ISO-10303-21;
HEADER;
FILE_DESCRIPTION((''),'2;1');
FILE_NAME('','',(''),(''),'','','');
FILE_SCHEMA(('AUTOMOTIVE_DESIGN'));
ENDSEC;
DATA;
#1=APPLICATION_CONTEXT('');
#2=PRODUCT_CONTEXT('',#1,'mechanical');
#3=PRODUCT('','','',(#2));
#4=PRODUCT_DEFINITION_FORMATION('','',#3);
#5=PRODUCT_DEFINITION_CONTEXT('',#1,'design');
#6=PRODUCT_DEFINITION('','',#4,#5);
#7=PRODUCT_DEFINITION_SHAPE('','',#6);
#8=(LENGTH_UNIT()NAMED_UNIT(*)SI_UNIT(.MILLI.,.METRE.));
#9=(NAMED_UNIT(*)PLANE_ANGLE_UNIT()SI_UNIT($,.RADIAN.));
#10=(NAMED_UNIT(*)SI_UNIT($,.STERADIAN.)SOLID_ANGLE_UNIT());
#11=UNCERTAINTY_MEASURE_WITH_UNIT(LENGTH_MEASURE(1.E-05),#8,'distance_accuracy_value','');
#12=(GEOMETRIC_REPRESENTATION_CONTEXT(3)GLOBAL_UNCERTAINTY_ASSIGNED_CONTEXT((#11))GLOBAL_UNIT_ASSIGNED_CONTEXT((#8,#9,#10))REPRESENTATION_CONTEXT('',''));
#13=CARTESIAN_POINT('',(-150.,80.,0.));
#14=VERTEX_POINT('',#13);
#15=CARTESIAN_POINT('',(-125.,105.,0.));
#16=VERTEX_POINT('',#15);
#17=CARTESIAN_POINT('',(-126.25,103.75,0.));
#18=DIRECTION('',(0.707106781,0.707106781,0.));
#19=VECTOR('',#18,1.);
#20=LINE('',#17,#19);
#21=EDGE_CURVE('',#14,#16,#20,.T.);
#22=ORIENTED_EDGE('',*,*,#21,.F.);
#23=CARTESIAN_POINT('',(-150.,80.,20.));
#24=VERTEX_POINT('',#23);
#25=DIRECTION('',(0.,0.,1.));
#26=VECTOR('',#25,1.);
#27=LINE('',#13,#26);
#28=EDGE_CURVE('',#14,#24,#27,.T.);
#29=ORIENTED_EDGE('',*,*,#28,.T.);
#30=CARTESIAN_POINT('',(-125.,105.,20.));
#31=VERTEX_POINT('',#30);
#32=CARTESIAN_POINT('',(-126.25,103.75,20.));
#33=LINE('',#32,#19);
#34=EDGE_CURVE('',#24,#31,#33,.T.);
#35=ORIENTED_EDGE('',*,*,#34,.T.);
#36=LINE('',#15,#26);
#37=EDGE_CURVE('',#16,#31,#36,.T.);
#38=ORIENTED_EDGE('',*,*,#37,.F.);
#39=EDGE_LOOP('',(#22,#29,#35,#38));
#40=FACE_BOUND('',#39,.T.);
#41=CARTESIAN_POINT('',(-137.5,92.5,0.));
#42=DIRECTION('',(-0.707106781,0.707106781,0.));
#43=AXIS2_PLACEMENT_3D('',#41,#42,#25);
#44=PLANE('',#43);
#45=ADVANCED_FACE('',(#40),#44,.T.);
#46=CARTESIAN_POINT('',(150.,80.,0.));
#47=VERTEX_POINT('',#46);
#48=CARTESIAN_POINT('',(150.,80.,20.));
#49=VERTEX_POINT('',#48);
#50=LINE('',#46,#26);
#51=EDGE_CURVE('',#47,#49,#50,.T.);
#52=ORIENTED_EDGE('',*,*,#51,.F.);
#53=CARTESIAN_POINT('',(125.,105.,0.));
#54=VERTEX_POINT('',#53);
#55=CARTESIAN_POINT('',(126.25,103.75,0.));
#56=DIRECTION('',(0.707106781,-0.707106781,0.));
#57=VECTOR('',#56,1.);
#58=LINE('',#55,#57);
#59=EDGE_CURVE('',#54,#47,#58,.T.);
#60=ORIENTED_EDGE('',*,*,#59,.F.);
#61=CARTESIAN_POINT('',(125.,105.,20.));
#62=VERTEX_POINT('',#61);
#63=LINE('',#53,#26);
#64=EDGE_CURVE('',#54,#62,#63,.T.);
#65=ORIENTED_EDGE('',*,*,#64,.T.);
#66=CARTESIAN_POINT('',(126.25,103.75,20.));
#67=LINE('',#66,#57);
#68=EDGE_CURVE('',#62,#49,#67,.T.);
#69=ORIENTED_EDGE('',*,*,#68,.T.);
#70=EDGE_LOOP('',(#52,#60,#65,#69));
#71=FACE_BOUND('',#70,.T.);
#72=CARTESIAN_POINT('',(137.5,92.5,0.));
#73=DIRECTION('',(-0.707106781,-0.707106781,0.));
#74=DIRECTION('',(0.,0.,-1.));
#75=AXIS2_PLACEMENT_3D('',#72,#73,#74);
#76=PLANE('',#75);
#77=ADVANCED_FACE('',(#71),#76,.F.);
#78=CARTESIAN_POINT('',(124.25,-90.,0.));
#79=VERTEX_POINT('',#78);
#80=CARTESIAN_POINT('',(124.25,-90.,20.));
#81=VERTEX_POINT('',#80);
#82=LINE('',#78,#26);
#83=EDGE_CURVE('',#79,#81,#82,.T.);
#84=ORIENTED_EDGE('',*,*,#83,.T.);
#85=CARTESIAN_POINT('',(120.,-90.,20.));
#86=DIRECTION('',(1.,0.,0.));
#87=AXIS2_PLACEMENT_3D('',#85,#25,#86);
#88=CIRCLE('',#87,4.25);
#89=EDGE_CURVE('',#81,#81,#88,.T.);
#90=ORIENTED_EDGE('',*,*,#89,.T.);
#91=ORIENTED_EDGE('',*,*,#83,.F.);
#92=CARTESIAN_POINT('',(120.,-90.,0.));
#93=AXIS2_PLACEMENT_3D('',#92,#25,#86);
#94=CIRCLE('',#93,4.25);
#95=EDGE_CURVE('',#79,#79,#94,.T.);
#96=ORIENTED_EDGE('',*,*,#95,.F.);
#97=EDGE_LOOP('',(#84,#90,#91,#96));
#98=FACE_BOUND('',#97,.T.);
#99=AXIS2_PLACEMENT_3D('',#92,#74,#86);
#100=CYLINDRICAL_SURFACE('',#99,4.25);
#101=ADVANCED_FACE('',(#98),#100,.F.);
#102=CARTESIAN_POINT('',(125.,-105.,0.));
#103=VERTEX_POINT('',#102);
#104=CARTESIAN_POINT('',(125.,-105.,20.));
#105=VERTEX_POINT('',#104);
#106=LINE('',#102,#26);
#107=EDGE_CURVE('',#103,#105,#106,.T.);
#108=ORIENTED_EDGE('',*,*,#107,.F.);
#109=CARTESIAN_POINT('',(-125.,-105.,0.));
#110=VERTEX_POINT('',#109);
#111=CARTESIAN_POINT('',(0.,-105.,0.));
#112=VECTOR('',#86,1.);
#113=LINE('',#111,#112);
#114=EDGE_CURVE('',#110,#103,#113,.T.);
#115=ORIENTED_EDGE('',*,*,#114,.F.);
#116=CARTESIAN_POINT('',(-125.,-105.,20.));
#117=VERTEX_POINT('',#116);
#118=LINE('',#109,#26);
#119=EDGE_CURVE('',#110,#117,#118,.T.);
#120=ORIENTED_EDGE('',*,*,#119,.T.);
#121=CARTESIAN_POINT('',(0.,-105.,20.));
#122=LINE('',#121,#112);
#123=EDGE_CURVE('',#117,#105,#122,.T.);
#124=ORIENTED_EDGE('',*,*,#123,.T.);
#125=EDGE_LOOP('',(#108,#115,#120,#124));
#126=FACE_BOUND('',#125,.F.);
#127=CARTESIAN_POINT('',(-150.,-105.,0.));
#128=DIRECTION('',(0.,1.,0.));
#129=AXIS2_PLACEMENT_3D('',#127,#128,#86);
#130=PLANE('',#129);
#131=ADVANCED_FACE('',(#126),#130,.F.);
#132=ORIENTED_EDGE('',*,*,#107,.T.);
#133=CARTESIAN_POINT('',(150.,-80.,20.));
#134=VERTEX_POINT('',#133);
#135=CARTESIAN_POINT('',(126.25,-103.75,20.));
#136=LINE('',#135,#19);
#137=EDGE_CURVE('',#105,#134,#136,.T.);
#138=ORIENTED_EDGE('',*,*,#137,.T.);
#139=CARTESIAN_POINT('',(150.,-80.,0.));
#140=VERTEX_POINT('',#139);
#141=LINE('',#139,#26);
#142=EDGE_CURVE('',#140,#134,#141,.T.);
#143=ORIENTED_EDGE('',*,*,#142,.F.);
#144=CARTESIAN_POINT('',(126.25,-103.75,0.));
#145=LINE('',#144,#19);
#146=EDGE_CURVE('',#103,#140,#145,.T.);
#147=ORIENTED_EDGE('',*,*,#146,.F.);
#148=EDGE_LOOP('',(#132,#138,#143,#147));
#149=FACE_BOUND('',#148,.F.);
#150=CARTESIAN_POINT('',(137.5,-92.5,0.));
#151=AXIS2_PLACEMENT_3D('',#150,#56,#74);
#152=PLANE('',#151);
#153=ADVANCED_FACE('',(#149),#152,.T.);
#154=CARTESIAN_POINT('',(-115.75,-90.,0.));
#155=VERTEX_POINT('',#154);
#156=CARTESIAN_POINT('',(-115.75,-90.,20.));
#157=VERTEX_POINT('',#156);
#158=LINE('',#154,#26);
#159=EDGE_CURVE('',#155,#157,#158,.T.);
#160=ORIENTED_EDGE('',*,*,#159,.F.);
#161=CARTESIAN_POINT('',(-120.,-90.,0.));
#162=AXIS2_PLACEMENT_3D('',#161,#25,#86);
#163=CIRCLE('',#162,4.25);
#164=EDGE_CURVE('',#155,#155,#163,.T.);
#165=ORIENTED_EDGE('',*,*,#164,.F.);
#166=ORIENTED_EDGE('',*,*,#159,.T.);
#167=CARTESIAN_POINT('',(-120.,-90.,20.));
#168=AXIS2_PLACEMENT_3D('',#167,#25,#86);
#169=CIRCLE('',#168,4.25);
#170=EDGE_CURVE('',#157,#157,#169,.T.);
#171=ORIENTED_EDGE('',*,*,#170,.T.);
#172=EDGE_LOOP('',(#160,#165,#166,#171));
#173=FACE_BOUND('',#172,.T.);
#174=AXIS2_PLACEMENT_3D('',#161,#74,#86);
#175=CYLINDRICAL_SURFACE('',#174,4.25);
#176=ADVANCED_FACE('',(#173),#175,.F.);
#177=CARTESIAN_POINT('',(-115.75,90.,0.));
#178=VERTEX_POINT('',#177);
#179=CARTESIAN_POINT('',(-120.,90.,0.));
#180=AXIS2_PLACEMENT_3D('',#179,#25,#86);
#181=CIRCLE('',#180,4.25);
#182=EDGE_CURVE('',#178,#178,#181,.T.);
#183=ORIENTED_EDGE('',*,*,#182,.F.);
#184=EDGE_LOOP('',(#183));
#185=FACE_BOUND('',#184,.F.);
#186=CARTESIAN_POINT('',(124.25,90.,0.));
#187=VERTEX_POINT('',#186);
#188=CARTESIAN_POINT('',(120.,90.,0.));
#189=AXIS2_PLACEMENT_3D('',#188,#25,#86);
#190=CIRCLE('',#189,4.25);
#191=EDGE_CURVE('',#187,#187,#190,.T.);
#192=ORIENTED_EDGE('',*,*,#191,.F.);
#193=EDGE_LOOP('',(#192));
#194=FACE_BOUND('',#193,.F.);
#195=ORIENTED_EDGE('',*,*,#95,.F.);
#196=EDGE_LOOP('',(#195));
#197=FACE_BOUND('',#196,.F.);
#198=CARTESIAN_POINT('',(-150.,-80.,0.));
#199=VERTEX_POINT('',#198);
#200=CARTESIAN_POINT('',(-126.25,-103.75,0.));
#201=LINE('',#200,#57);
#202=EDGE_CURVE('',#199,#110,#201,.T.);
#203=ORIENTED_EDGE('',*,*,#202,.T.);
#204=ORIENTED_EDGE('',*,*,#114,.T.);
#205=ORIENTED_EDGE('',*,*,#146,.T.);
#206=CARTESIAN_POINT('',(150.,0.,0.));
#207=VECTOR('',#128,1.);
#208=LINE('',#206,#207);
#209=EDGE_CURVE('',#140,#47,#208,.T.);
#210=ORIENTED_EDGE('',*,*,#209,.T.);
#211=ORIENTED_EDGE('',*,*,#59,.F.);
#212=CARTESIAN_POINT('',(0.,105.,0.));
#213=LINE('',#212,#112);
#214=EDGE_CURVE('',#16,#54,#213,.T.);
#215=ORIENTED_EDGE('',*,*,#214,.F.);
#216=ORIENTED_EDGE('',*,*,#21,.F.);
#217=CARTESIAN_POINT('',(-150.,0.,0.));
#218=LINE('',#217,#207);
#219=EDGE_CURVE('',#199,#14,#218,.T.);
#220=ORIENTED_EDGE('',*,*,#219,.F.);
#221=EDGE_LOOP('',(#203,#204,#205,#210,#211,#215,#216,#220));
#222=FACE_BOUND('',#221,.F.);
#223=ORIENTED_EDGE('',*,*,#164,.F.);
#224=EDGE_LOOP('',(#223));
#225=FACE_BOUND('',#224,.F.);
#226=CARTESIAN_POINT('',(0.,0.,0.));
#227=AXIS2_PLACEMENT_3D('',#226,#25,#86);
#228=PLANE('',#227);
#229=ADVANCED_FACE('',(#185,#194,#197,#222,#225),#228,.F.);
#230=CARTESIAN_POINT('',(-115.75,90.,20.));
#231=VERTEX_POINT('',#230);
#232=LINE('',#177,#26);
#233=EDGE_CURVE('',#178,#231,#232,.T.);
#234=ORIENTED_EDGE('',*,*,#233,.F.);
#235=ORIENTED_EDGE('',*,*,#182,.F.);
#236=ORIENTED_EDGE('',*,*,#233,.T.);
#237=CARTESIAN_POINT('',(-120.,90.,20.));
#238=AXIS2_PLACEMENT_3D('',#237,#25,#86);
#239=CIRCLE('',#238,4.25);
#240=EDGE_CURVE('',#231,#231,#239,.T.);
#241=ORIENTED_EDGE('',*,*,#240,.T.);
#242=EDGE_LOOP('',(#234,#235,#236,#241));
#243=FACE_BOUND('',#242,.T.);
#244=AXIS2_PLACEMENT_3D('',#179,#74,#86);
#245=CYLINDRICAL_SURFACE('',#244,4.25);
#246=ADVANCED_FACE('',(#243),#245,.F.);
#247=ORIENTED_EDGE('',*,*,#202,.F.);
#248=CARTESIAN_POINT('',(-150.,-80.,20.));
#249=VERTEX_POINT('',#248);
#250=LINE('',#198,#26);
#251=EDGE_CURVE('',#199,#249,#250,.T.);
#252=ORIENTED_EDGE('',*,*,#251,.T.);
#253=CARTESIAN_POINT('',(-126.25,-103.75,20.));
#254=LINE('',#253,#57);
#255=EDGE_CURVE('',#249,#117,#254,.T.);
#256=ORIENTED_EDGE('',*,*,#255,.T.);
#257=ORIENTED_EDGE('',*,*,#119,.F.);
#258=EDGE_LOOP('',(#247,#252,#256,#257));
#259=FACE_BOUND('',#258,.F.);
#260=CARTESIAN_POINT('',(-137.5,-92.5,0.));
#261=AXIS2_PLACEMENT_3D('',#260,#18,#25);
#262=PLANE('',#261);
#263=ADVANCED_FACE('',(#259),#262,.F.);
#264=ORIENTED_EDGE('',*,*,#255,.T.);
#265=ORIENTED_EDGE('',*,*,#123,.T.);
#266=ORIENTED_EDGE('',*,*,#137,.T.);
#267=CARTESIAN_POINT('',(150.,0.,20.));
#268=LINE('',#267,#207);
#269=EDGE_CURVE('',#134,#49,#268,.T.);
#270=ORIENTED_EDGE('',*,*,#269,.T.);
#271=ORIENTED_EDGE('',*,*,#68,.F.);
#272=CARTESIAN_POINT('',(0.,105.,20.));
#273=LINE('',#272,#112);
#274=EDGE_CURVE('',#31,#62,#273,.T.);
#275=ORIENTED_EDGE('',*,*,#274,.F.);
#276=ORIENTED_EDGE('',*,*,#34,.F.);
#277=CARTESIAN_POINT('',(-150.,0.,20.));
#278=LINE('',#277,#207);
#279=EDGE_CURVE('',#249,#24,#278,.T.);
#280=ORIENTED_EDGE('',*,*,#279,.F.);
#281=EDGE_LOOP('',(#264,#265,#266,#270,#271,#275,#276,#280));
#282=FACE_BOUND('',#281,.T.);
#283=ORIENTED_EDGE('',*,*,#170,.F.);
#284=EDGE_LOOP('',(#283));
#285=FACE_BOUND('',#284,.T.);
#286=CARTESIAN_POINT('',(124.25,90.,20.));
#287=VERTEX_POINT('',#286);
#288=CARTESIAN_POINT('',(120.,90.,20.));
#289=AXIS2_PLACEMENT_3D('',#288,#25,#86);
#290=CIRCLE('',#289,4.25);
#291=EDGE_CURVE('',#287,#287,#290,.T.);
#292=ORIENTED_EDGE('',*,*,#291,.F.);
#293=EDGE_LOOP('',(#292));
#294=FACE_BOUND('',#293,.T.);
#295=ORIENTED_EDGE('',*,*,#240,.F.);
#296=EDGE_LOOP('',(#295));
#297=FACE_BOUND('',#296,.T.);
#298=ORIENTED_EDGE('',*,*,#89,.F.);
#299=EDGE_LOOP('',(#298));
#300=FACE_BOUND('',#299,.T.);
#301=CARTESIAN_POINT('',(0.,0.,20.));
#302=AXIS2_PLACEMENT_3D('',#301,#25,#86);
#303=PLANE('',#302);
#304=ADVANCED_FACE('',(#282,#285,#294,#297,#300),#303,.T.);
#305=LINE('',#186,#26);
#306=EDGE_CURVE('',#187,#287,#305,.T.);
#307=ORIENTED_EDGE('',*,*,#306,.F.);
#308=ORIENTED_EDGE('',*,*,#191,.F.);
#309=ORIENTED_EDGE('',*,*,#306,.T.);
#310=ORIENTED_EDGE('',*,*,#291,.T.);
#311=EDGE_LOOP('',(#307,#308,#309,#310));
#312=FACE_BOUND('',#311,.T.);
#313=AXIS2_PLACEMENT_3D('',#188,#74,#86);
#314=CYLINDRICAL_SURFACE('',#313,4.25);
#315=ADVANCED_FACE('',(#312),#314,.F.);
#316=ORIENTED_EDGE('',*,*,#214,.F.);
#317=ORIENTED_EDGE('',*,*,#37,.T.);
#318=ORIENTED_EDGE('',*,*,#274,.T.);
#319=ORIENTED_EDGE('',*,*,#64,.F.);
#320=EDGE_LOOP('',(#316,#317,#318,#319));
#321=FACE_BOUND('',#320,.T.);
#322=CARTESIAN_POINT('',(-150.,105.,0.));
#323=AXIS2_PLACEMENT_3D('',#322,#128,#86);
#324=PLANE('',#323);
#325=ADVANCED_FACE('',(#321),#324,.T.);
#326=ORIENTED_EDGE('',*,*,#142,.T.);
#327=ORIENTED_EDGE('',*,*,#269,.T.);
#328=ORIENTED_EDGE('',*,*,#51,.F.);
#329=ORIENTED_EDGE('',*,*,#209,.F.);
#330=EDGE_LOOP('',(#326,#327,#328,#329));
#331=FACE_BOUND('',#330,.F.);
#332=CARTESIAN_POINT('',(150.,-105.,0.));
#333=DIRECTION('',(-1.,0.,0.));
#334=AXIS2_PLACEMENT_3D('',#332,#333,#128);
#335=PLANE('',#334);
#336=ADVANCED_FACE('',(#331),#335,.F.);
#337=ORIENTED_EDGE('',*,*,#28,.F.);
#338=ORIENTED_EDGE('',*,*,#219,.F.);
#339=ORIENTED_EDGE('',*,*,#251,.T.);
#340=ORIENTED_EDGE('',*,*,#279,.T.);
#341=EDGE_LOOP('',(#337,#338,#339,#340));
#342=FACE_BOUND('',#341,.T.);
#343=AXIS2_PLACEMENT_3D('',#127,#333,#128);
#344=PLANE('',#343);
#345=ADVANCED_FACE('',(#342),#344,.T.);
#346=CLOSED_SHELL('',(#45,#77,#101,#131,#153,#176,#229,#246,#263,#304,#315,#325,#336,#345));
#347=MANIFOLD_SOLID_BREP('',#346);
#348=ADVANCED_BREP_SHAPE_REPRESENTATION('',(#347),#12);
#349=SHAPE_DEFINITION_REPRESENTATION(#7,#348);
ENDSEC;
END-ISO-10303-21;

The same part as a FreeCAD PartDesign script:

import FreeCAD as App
import Part
import Sketcher


def edges_at(feature, points):
    """Names of the edges that pass closest to the given points."""
    edges = feature.Shape.Edges
    near = lambda p: min(range(len(edges)), key=lambda i: edges[i].distToShape(Part.Vertex(*p))[0])
    return sorted({f"Edge{near(p) + 1}" for p in points})

doc = App.newDocument("Part")
params = doc.addObject("Spreadsheet::Sheet", "Params")
for row, (alias, value) in enumerate([
    ("sketch1_diameter", "8.5 mm"),
    ("sketch1_width", "300 mm"),
    ("sketch1_height", "210 mm"),
    ("pad1_length", "20 mm"),
    ("chamfer_size", "25 mm"),
], start=1):
    params.set(f"A{row}", alias)
    params.set(f"B{row}", "=" + value)
    params.setAlias(f"B{row}", alias)

body = doc.addObject("PartDesign::Body", "Body")

# Sketch on XY plane
sketch1 = doc.addObject("Sketcher::SketchObject", "Sketch")
body.addObject(sketch1)
sketch1.AttachmentSupport = (doc.XY_Plane, [""])
sketch1.MapMode = "FlatFace"
sketch1.addGeometry([
    Part.LineSegment(App.Vector(-150, 105, 0), App.Vector(-150, -105, 0)),  # 0
    Part.LineSegment(App.Vector(-150, -105, 0), App.Vector(150, -105, 0)),  # 1
    Part.LineSegment(App.Vector(150, -105, 0), App.Vector(150, 105, 0)),  # 2
    Part.LineSegment(App.Vector(150, 105, 0), App.Vector(-150, 105, 0)),  # 3
    Part.Circle(App.Vector(-120, -90, 0), App.Vector(0, 0, 1), 4.25),  # 4
    Part.Circle(App.Vector(120, -90, 0), App.Vector(0, 0, 1), 4.25),  # 5
    Part.Circle(App.Vector(-120, 90, 0), App.Vector(0, 0, 1), 4.25),  # 6
    Part.Circle(App.Vector(120, 90, 0), App.Vector(0, 0, 1), 4.25),  # 7
], False)
sketch1.addConstraint([
    Sketcher.Constraint("Coincident", 0, 2, 1, 1),
    Sketcher.Constraint("Coincident", 1, 2, 2, 1),
    Sketcher.Constraint("Coincident", 2, 2, 3, 1),
    Sketcher.Constraint("Coincident", 3, 2, 0, 1),
    Sketcher.Constraint("Vertical", 0),
    Sketcher.Constraint("Horizontal", 1),
    Sketcher.Constraint("Vertical", 2),
    Sketcher.Constraint("Horizontal", 3),
    Sketcher.Constraint("Equal", 4, 5),
    Sketcher.Constraint("Equal", 5, 6),
    Sketcher.Constraint("Equal", 6, 7),
    Sketcher.Constraint("Symmetric", 5, 3, 6, 3, -1, 1),
    Sketcher.Constraint("Symmetric", 4, 3, 7, 3, -1, 1),
    Sketcher.Constraint("Symmetric", 0, 2, 2, 2, -1, 1),
    Sketcher.Constraint("Symmetric", 4, 3, 5, 3, -2),
    Sketcher.Constraint("Diameter", 4, 8.5),
    Sketcher.Constraint("DistanceX", 1, 1, 1, 2, 300.0),
    Sketcher.Constraint("DistanceY", 0, 2, 0, 1, 210.0),
    Sketcher.Constraint("DistanceX", 4, 3, -1, 1, 120.0),
    Sketcher.Constraint("DistanceY", 4, 3, -1, 1, 90.0),
])
sketch1.setExpression("Constraints[15]", "Params.sketch1_diameter")
sketch1.setExpression("Constraints[16]", "Params.sketch1_width")
sketch1.setExpression("Constraints[17]", "Params.sketch1_height")
pad1 = doc.addObject("PartDesign::Pad", "Pad")
body.addObject(pad1)
pad1.Profile = sketch1
pad1.setExpression("Length", "Params.pad1_length")
doc.recompute()

chamfer = doc.addObject("PartDesign::Chamfer", "Chamfer")
body.addObject(chamfer)
chamfer.Base = (pad1, edges_at(pad1, [
    (-150, -105, 10),
    (-150, 105, 10),
    (150, -105, 10),
    (150, 105, 10),
]))
chamfer.setExpression("Size", "Params.chamfer_size")

doc.recompute()
